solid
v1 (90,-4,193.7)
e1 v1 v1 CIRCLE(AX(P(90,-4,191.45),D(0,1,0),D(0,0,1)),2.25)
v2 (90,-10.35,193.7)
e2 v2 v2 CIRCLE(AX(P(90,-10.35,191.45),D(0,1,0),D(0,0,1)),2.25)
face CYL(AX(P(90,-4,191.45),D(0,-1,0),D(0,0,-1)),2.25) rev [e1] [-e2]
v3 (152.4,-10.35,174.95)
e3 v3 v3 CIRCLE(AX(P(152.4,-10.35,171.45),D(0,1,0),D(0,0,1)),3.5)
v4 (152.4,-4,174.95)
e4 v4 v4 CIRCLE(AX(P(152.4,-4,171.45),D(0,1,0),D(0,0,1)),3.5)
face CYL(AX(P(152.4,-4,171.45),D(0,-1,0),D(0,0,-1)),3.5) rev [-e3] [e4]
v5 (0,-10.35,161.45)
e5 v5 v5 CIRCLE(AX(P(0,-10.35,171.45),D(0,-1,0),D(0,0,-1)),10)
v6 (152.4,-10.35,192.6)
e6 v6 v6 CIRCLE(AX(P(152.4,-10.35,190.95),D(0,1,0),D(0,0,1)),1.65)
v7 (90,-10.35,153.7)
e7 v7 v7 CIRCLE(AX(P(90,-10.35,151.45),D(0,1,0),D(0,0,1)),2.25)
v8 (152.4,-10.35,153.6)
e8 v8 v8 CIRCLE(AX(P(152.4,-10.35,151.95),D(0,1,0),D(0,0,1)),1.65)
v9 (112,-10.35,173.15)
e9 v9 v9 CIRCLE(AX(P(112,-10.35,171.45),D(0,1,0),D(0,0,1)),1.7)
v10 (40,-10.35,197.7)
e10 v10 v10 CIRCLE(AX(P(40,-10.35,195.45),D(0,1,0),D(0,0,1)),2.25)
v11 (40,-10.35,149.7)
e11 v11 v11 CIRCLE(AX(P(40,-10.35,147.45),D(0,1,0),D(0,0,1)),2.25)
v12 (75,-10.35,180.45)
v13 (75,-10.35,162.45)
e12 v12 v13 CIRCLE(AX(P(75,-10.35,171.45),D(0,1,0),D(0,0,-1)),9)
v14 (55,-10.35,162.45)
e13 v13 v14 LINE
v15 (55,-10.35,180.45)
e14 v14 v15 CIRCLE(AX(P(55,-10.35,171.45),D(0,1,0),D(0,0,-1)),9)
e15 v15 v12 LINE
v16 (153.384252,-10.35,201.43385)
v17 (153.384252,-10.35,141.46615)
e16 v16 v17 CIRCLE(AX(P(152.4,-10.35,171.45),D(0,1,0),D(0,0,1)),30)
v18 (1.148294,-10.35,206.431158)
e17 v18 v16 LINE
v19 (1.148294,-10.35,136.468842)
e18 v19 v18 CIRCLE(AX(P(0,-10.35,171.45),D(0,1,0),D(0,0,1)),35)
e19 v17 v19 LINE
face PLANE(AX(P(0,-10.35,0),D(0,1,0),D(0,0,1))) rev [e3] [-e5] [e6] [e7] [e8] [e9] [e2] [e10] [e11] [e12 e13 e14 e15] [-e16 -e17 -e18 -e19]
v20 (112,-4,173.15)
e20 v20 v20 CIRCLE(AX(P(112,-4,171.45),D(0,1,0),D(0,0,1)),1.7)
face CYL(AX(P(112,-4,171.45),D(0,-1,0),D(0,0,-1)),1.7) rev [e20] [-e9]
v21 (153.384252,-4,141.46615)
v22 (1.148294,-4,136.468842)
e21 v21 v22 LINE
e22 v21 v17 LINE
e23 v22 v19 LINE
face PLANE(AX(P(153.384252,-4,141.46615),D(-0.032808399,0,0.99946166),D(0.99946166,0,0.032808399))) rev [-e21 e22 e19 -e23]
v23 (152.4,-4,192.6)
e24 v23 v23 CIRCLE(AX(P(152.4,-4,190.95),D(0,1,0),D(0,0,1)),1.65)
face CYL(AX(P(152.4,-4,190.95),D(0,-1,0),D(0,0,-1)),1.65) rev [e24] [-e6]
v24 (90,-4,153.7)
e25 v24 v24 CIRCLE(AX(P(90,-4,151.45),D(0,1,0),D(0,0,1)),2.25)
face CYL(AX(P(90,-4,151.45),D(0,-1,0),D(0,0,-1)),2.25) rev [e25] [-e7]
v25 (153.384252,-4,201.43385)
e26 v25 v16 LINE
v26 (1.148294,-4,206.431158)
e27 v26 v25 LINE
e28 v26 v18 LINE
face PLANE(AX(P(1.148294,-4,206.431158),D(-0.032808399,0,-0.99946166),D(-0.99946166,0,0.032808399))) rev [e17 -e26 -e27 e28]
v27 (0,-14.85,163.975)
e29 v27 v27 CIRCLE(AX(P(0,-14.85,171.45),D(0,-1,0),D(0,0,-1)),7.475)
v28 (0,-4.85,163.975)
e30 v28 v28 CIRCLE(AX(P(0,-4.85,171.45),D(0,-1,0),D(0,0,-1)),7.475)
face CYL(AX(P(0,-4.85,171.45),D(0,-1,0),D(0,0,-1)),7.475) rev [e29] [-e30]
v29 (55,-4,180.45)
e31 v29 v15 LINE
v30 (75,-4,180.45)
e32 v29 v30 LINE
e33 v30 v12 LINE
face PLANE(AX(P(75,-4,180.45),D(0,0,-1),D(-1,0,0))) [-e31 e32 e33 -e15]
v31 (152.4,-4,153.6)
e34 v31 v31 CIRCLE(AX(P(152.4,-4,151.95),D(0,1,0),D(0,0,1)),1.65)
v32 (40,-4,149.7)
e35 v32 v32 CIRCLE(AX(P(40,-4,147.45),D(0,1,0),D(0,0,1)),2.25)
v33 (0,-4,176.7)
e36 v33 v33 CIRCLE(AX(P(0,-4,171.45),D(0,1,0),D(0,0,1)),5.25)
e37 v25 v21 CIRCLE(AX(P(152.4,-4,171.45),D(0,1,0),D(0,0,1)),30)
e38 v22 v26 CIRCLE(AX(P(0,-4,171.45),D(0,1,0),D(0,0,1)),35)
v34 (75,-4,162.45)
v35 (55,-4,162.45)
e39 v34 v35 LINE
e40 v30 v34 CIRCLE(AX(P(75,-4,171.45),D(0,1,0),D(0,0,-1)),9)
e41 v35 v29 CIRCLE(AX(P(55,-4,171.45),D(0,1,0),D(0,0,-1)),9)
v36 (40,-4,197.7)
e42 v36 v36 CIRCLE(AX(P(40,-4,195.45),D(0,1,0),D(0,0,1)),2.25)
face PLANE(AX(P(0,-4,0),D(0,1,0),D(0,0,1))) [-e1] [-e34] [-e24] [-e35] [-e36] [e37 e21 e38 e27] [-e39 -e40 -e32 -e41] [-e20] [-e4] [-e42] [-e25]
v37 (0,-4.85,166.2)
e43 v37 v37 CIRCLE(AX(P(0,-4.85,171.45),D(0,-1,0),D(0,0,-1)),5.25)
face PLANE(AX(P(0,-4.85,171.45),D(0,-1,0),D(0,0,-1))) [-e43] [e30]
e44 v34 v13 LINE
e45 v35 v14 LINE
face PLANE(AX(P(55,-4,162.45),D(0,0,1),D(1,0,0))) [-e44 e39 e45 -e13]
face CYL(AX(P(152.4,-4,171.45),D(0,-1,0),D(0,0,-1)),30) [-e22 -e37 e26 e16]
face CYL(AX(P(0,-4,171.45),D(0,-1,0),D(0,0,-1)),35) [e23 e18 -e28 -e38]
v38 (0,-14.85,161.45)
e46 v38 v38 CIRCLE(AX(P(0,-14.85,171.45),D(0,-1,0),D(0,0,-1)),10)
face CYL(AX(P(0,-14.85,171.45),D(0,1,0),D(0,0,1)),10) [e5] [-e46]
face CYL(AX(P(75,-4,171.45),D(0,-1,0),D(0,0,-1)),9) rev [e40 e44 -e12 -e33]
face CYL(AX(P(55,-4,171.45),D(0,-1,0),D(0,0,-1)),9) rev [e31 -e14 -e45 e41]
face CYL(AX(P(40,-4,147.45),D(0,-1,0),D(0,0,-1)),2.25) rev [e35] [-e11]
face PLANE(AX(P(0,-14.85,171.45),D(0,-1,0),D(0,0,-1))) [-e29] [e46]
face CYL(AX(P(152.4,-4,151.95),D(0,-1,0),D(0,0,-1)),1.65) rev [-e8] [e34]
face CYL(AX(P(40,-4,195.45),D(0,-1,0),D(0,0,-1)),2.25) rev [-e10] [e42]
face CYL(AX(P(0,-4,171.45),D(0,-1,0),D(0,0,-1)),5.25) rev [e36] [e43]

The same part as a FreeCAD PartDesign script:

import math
import FreeCAD as App
import Part
import Sketcher
Q = App.Units.Quantity

doc = App.newDocument("Part")
body = doc.addObject("PartDesign::Body", "Body")

# Sketch on XZ plane
sketch1 = body.newObject("Sketcher::SketchObject", "Sketch")
sketch1.AttachmentSupport = (doc.getObject("XZ_Plane"), [""])
sketch1.MapMode = "FlatFace"
sketch1.AttachmentOffset = App.Placement(App.Vector(0, 0, 10.35), App.Rotation())
sketch1.addGeometry([
    Part.LineSegment(App.Vector(1, 206, 0), App.Vector(153, 201, 0)),
    Part.LineSegment(App.Vector(153, 201, 0), App.Vector(153, 141, 0)),
    Part.LineSegment(App.Vector(153, 141, 0), App.Vector(1, 136, 0)),
    Part.LineSegment(App.Vector(1, 136, 0), App.Vector(1, 206, 0)),
], False)
sketch1.addConstraint([
    Sketcher.Constraint("Coincident", 0, 2, 1, 1),
    Sketcher.Constraint("Coincident", 1, 2, 2, 1),
    Sketcher.Constraint("Coincident", 2, 2, 3, 1),
    Sketcher.Constraint("Coincident", 3, 2, 0, 1),
    Sketcher.Constraint("Vertical", 1),
    Sketcher.Constraint("Vertical", 3),
    Sketcher.Constraint("Equal", 0, 2),
    Sketcher.Constraint("DistanceY", 1, 2, 1, 1, Q("59.9677 mm")),
    Sketcher.Constraint("DistanceY", 3, 1, 3, 2, Q("69.962316 mm")),
    Sketcher.Constraint("DistanceX", -1, 1, 0, 2, Q("153.384252 mm")),
    Sketcher.Constraint("DistanceY", -1, 1, 0, 2, Q("201.43385 mm")),
    Sketcher.Constraint("DistanceX", 2, 2, 1, 2, Q("152.235958 mm")),
])
pad1 = body.newObject("PartDesign::Pad", "Pad")
pad1.Profile = sketch1
pad1.Length = 6.35
pad1.Reversed = True

# Sketch on XZ plane
sketch2 = body.newObject("Sketcher::SketchObject", "Sketch001")
sketch2.AttachmentSupport = (doc.getObject("XZ_Plane"), [""])
sketch2.MapMode = "FlatFace"
sketch2.AttachmentOffset = App.Placement(App.Vector(0, 0, 10.35), App.Rotation())
sketch2.addGeometry(Part.Circle(App.Vector(0, 171, 0), App.Vector(0, 0, 1), 35), False)
sketch2.addConstraint([
    Sketcher.Constraint("PointOnObject", 0, 3, -2),
    Sketcher.Constraint("Diameter", 0, Q("70 mm")),
    Sketcher.Constraint("DistanceY", -1, 1, 0, 3, Q("171.45 mm")),
])
pad2 = body.newObject("PartDesign::Pad", "Pad001")
pad2.Profile = sketch2
pad2.Length = 6.35
pad2.Reversed = True

# Sketch on XZ plane
sketch3 = body.newObject("Sketcher::SketchObject", "Sketch002")
sketch3.AttachmentSupport = (doc.getObject("XZ_Plane"), [""])
sketch3.MapMode = "FlatFace"
sketch3.AttachmentOffset = App.Placement(App.Vector(0, 0, 10.35), App.Rotation())
sketch3.addGeometry(Part.Circle(App.Vector(152, 171, 0), App.Vector(0, 0, 1), 30), False)
sketch3.addConstraint([
    Sketcher.Constraint("Diameter", 0, Q("60 mm")),
    Sketcher.Constraint("DistanceX", -1, 1, 0, 3, Q("152.4 mm")),
    Sketcher.Constraint("DistanceY", -1, 1, 0, 3, Q("171.45 mm")),
])
pad3 = body.newObject("PartDesign::Pad", "Pad002")
pad3.Profile = sketch3
pad3.Length = 6.35
pad3.Reversed = True

# Sketch on XZ plane
sketch4 = body.newObject("Sketcher::SketchObject", "Sketch003")
sketch4.AttachmentSupport = (doc.getObject("XZ_Plane"), [""])
sketch4.MapMode = "FlatFace"
sketch4.AttachmentOffset = App.Placement(App.Vector(0, 0, 10.35), App.Rotation())
sketch4.addGeometry([
    Part.LineSegment(App.Vector(75, 162, 0), App.Vector(55, 162, 0)),
    Part.ArcOfCircle(Part.Circle(App.Vector(55, 171, 0), App.Vector(0, 0, 1), 9), math.radians(90), math.radians(270)),
    Part.LineSegment(App.Vector(55, 180, 0), App.Vector(75, 180, 0)),
    Part.ArcOfCircle(Part.Circle(App.Vector(75, 171, 0), App.Vector(0, 0, 1), 9), math.radians(-90), math.radians(90)),
], False)
sketch4.addConstraint([
    Sketcher.Constraint("Tangent", 0, 2, 1, 2),
    Sketcher.Constraint("Tangent", 1, 1, 2, 1),
    Sketcher.Constraint("Tangent", 2, 2, 3, 2),
    Sketcher.Constraint("Tangent", 3, 1, 0, 1),
    Sketcher.Constraint("Horizontal", 0),
    Sketcher.Constraint("Horizontal", 2),
    Sketcher.Constraint("Radius", 1, Q("9 mm")),
    Sketcher.Constraint("DistanceX", 0, 2, 0, 1, Q("20 mm")),
    Sketcher.Constraint("DistanceX", -1, 1, 1, 3, Q("55 mm")),
    Sketcher.Constraint("DistanceY", -1, 1, 1, 3, Q("171.45 mm")),
])
pocket1 = body.newObject("PartDesign::Pocket", "Pocket")
pocket1.Profile = sketch4
pocket1.Length = 6.35

# Sketch on XZ plane
sketch5 = body.newObject("Sketcher::SketchObject", "Sketch004")
sketch5.AttachmentSupport = (doc.getObject("XZ_Plane"), [""])
sketch5.MapMode = "FlatFace"
sketch5.AttachmentOffset = App.Placement(App.Vector(0, 0, 10.35), App.Rotation())
sketch5.addGeometry([
    Part.Circle(App.Vector(40, 195.4, 0), App.Vector(0, 0, 1), 2.2),
    Part.Circle(App.Vector(40, 147.4, 0), App.Vector(0, 0, 1), 2.2),
    Part.Circle(App.Vector(90, 191.4, 0), App.Vector(0, 0, 1), 2.2),
    Part.Circle(App.Vector(90, 151.4, 0), App.Vector(0, 0, 1), 2.2),
], False)
sketch5.addConstraint([
    Sketcher.Constraint("Equal", 0, 1),
    Sketcher.Constraint("Equal", 1, 2),
    Sketcher.Constraint("Equal", 2, 3),
    Sketcher.Constraint("Vertical", 0, 3, 1, 3),
    Sketcher.Constraint("Vertical", 2, 3, 3, 3),
    Sketcher.Constraint("Diameter", 0, Q("4.5 mm")),
    Sketcher.Constraint("DistanceX", -1, 1, 0, 3, Q("40 mm")),
    Sketcher.Constraint("DistanceX", -1, 1, 2, 3, Q("90 mm")),
    Sketcher.Constraint("DistanceY", 1, 3, 0, 3, Q("48 mm")),
    Sketcher.Constraint("DistanceY", 2, 3, 0, 3, Q("4 mm")),
    Sketcher.Constraint("DistanceY", 3, 3, 2, 3, Q("40 mm")),
    Sketcher.Constraint("DistanceY", -1, 1, 0, 3, Q("195.45 mm")),
])
pocket2 = body.newObject("PartDesign::Pocket", "Pocket001")
pocket2.Profile = sketch5
pocket2.Length = 6.35

# Sketch on XZ plane
sketch6 = body.newObject("Sketcher::SketchObject", "Sketch005")
sketch6.AttachmentSupport = (doc.getObject("XZ_Plane"), [""])
sketch6.MapMode = "FlatFace"
sketch6.AttachmentOffset = App.Placement(App.Vector(0, 0, 10.35), App.Rotation())
sketch6.addGeometry([
    Part.Circle(App.Vector(0, 171.4, 0), App.Vector(0, 0, 1), 5.2),
    Part.Circle(App.Vector(152.4, 171.4, 0), App.Vector(0, 0, 1), 3.5),
    Part.Circle(App.Vector(152.4, 190.9, 0), App.Vector(0, 0, 1), 1.6),
    Part.Circle(App.Vector(152.4, 151.9, 0), App.Vector(0, 0, 1), 1.6),
], False)
sketch6.addConstraint([
    Sketcher.Constraint("Equal", 2, 3),
    Sketcher.Constraint("PointOnObject", 0, 3, -2),
    Sketcher.Constraint("Horizontal", 0, 3, 1, 3),
    Sketcher.Constraint("Vertical", 1, 3, 2, 3),
    Sketcher.Constraint("Vertical", 2, 3, 3, 3),
    Sketcher.Constraint("Diameter", 1, Q("7 mm")),
    Sketcher.Constraint("Diameter", 0, Q("10.5 mm")),
    Sketcher.Constraint("Diameter", 2, Q("3.3 mm")),
    Sketcher.Constraint("DistanceY", 3, 3, 2, 3, Q("39 mm")),
    Sketcher.Constraint("DistanceX", -1, 1, 1, 3, Q("152.4 mm")),
    Sketcher.Constraint("DistanceY", 1, 3, 2, 3, Q("19.5 mm")),
    Sketcher.Constraint("DistanceY", -1, 1, 0, 3, Q("171.45 mm")),
])
pocket3 = body.newObject("PartDesign::Pocket", "Pocket002")
pocket3.Profile = sketch6
pocket3.Length = 6.35

# Sketch on XZ plane
sketch7 = body.newObject("Sketcher::SketchObject", "Sketch006")
sketch7.AttachmentSupport = (doc.getObject("XZ_Plane"), [""])
sketch7.MapMode = "FlatFace"
sketch7.AttachmentOffset = App.Placement(App.Vector(0, 0, 10.35), App.Rotation())
sketch7.addGeometry(Part.Circle(App.Vector(112, 171.4, 0), App.Vector(0, 0, 1), 1.2), False)
sketch7.addConstraint([
    Sketcher.Constraint("Diameter", 0, Q("2.5 mm")),
    Sketcher.Constraint("DistanceX", -1, 1, 0, 3, Q("112 mm")),
    Sketcher.Constraint("DistanceY", -1, 1, 0, 3, Q("171.45 mm")),
])
pocket4 = body.newObject("PartDesign::Pocket", "Pocket003")
pocket4.Profile = sketch7
pocket4.Length = 6.35

# Sketch on XZ plane
sketch8 = body.newObject("Sketcher::SketchObject", "Sketch007")
sketch8.AttachmentSupport = (doc.getObject("XZ_Plane"), [""])
sketch8.MapMode = "FlatFace"
sketch8.AttachmentOffset = App.Placement(App.Vector(0, 0, 10.35), App.Rotation())
sketch8.addGeometry(Part.Circle(App.Vector(112, 171.4, 0), App.Vector(0, 0, 1), 1.7), False)
sketch8.addConstraint([
    Sketcher.Constraint("Diameter", 0, Q("3.4 mm")),
    Sketcher.Constraint("DistanceX", -1, 1, 0, 3, Q("112 mm")),
    Sketcher.Constraint("DistanceY", -1, 1, 0, 3, Q("171.45 mm")),
])
pocket5 = body.newObject("PartDesign::Pocket", "Pocket004")
pocket5.Profile = sketch8
pocket5.Length = 6.35

# Sketch on XZ plane
sketch9 = body.newObject("Sketcher::SketchObject", "Sketch008")
sketch9.AttachmentSupport = (doc.getObject("XZ_Plane"), [""])
sketch9.MapMode = "FlatFace"
sketch9.AttachmentOffset = App.Placement(App.Vector(0, 0, 10.35), App.Rotation())
sketch9.addGeometry(Part.Circle(App.Vector(0, 171, 0), App.Vector(0, 0, 1), 10), False)
sketch9.addConstraint([
    Sketcher.Constraint("PointOnObject", 0, 3, -2),
    Sketcher.Constraint("Diameter", 0, Q("20 mm")),
    Sketcher.Constraint("DistanceY", -1, 1, 0, 3, Q("171.45 mm")),
])
pad4 = body.newObject("PartDesign::Pad", "Pad003")
pad4.Profile = sketch9
pad4.Length = 4.5

# Sketch on XZ plane
sketch10 = body.newObject("Sketcher::SketchObject", "Sketch009")
sketch10.AttachmentSupport = (doc.getObject("XZ_Plane"), [""])
sketch10.MapMode = "FlatFace"
sketch10.AttachmentOffset = App.Placement(App.Vector(0, 0, 14.85), App.Rotation())
sketch10.addGeometry(Part.Circle(App.Vector(0, 171, 0), App.Vector(0, 0, 1), 7), False)
sketch10.addConstraint([
    Sketcher.Constraint("PointOnObject", 0, 3, -2),
    Sketcher.Constraint("Diameter", 0, Q("14.95 mm")),
    Sketcher.Constraint("DistanceY", -1, 1, 0, 3, Q("171.45 mm")),
])
pocket6 = body.newObject("PartDesign::Pocket", "Pocket005")
pocket6.Profile = sketch10
pocket6.Length = 10

doc.recompute()
